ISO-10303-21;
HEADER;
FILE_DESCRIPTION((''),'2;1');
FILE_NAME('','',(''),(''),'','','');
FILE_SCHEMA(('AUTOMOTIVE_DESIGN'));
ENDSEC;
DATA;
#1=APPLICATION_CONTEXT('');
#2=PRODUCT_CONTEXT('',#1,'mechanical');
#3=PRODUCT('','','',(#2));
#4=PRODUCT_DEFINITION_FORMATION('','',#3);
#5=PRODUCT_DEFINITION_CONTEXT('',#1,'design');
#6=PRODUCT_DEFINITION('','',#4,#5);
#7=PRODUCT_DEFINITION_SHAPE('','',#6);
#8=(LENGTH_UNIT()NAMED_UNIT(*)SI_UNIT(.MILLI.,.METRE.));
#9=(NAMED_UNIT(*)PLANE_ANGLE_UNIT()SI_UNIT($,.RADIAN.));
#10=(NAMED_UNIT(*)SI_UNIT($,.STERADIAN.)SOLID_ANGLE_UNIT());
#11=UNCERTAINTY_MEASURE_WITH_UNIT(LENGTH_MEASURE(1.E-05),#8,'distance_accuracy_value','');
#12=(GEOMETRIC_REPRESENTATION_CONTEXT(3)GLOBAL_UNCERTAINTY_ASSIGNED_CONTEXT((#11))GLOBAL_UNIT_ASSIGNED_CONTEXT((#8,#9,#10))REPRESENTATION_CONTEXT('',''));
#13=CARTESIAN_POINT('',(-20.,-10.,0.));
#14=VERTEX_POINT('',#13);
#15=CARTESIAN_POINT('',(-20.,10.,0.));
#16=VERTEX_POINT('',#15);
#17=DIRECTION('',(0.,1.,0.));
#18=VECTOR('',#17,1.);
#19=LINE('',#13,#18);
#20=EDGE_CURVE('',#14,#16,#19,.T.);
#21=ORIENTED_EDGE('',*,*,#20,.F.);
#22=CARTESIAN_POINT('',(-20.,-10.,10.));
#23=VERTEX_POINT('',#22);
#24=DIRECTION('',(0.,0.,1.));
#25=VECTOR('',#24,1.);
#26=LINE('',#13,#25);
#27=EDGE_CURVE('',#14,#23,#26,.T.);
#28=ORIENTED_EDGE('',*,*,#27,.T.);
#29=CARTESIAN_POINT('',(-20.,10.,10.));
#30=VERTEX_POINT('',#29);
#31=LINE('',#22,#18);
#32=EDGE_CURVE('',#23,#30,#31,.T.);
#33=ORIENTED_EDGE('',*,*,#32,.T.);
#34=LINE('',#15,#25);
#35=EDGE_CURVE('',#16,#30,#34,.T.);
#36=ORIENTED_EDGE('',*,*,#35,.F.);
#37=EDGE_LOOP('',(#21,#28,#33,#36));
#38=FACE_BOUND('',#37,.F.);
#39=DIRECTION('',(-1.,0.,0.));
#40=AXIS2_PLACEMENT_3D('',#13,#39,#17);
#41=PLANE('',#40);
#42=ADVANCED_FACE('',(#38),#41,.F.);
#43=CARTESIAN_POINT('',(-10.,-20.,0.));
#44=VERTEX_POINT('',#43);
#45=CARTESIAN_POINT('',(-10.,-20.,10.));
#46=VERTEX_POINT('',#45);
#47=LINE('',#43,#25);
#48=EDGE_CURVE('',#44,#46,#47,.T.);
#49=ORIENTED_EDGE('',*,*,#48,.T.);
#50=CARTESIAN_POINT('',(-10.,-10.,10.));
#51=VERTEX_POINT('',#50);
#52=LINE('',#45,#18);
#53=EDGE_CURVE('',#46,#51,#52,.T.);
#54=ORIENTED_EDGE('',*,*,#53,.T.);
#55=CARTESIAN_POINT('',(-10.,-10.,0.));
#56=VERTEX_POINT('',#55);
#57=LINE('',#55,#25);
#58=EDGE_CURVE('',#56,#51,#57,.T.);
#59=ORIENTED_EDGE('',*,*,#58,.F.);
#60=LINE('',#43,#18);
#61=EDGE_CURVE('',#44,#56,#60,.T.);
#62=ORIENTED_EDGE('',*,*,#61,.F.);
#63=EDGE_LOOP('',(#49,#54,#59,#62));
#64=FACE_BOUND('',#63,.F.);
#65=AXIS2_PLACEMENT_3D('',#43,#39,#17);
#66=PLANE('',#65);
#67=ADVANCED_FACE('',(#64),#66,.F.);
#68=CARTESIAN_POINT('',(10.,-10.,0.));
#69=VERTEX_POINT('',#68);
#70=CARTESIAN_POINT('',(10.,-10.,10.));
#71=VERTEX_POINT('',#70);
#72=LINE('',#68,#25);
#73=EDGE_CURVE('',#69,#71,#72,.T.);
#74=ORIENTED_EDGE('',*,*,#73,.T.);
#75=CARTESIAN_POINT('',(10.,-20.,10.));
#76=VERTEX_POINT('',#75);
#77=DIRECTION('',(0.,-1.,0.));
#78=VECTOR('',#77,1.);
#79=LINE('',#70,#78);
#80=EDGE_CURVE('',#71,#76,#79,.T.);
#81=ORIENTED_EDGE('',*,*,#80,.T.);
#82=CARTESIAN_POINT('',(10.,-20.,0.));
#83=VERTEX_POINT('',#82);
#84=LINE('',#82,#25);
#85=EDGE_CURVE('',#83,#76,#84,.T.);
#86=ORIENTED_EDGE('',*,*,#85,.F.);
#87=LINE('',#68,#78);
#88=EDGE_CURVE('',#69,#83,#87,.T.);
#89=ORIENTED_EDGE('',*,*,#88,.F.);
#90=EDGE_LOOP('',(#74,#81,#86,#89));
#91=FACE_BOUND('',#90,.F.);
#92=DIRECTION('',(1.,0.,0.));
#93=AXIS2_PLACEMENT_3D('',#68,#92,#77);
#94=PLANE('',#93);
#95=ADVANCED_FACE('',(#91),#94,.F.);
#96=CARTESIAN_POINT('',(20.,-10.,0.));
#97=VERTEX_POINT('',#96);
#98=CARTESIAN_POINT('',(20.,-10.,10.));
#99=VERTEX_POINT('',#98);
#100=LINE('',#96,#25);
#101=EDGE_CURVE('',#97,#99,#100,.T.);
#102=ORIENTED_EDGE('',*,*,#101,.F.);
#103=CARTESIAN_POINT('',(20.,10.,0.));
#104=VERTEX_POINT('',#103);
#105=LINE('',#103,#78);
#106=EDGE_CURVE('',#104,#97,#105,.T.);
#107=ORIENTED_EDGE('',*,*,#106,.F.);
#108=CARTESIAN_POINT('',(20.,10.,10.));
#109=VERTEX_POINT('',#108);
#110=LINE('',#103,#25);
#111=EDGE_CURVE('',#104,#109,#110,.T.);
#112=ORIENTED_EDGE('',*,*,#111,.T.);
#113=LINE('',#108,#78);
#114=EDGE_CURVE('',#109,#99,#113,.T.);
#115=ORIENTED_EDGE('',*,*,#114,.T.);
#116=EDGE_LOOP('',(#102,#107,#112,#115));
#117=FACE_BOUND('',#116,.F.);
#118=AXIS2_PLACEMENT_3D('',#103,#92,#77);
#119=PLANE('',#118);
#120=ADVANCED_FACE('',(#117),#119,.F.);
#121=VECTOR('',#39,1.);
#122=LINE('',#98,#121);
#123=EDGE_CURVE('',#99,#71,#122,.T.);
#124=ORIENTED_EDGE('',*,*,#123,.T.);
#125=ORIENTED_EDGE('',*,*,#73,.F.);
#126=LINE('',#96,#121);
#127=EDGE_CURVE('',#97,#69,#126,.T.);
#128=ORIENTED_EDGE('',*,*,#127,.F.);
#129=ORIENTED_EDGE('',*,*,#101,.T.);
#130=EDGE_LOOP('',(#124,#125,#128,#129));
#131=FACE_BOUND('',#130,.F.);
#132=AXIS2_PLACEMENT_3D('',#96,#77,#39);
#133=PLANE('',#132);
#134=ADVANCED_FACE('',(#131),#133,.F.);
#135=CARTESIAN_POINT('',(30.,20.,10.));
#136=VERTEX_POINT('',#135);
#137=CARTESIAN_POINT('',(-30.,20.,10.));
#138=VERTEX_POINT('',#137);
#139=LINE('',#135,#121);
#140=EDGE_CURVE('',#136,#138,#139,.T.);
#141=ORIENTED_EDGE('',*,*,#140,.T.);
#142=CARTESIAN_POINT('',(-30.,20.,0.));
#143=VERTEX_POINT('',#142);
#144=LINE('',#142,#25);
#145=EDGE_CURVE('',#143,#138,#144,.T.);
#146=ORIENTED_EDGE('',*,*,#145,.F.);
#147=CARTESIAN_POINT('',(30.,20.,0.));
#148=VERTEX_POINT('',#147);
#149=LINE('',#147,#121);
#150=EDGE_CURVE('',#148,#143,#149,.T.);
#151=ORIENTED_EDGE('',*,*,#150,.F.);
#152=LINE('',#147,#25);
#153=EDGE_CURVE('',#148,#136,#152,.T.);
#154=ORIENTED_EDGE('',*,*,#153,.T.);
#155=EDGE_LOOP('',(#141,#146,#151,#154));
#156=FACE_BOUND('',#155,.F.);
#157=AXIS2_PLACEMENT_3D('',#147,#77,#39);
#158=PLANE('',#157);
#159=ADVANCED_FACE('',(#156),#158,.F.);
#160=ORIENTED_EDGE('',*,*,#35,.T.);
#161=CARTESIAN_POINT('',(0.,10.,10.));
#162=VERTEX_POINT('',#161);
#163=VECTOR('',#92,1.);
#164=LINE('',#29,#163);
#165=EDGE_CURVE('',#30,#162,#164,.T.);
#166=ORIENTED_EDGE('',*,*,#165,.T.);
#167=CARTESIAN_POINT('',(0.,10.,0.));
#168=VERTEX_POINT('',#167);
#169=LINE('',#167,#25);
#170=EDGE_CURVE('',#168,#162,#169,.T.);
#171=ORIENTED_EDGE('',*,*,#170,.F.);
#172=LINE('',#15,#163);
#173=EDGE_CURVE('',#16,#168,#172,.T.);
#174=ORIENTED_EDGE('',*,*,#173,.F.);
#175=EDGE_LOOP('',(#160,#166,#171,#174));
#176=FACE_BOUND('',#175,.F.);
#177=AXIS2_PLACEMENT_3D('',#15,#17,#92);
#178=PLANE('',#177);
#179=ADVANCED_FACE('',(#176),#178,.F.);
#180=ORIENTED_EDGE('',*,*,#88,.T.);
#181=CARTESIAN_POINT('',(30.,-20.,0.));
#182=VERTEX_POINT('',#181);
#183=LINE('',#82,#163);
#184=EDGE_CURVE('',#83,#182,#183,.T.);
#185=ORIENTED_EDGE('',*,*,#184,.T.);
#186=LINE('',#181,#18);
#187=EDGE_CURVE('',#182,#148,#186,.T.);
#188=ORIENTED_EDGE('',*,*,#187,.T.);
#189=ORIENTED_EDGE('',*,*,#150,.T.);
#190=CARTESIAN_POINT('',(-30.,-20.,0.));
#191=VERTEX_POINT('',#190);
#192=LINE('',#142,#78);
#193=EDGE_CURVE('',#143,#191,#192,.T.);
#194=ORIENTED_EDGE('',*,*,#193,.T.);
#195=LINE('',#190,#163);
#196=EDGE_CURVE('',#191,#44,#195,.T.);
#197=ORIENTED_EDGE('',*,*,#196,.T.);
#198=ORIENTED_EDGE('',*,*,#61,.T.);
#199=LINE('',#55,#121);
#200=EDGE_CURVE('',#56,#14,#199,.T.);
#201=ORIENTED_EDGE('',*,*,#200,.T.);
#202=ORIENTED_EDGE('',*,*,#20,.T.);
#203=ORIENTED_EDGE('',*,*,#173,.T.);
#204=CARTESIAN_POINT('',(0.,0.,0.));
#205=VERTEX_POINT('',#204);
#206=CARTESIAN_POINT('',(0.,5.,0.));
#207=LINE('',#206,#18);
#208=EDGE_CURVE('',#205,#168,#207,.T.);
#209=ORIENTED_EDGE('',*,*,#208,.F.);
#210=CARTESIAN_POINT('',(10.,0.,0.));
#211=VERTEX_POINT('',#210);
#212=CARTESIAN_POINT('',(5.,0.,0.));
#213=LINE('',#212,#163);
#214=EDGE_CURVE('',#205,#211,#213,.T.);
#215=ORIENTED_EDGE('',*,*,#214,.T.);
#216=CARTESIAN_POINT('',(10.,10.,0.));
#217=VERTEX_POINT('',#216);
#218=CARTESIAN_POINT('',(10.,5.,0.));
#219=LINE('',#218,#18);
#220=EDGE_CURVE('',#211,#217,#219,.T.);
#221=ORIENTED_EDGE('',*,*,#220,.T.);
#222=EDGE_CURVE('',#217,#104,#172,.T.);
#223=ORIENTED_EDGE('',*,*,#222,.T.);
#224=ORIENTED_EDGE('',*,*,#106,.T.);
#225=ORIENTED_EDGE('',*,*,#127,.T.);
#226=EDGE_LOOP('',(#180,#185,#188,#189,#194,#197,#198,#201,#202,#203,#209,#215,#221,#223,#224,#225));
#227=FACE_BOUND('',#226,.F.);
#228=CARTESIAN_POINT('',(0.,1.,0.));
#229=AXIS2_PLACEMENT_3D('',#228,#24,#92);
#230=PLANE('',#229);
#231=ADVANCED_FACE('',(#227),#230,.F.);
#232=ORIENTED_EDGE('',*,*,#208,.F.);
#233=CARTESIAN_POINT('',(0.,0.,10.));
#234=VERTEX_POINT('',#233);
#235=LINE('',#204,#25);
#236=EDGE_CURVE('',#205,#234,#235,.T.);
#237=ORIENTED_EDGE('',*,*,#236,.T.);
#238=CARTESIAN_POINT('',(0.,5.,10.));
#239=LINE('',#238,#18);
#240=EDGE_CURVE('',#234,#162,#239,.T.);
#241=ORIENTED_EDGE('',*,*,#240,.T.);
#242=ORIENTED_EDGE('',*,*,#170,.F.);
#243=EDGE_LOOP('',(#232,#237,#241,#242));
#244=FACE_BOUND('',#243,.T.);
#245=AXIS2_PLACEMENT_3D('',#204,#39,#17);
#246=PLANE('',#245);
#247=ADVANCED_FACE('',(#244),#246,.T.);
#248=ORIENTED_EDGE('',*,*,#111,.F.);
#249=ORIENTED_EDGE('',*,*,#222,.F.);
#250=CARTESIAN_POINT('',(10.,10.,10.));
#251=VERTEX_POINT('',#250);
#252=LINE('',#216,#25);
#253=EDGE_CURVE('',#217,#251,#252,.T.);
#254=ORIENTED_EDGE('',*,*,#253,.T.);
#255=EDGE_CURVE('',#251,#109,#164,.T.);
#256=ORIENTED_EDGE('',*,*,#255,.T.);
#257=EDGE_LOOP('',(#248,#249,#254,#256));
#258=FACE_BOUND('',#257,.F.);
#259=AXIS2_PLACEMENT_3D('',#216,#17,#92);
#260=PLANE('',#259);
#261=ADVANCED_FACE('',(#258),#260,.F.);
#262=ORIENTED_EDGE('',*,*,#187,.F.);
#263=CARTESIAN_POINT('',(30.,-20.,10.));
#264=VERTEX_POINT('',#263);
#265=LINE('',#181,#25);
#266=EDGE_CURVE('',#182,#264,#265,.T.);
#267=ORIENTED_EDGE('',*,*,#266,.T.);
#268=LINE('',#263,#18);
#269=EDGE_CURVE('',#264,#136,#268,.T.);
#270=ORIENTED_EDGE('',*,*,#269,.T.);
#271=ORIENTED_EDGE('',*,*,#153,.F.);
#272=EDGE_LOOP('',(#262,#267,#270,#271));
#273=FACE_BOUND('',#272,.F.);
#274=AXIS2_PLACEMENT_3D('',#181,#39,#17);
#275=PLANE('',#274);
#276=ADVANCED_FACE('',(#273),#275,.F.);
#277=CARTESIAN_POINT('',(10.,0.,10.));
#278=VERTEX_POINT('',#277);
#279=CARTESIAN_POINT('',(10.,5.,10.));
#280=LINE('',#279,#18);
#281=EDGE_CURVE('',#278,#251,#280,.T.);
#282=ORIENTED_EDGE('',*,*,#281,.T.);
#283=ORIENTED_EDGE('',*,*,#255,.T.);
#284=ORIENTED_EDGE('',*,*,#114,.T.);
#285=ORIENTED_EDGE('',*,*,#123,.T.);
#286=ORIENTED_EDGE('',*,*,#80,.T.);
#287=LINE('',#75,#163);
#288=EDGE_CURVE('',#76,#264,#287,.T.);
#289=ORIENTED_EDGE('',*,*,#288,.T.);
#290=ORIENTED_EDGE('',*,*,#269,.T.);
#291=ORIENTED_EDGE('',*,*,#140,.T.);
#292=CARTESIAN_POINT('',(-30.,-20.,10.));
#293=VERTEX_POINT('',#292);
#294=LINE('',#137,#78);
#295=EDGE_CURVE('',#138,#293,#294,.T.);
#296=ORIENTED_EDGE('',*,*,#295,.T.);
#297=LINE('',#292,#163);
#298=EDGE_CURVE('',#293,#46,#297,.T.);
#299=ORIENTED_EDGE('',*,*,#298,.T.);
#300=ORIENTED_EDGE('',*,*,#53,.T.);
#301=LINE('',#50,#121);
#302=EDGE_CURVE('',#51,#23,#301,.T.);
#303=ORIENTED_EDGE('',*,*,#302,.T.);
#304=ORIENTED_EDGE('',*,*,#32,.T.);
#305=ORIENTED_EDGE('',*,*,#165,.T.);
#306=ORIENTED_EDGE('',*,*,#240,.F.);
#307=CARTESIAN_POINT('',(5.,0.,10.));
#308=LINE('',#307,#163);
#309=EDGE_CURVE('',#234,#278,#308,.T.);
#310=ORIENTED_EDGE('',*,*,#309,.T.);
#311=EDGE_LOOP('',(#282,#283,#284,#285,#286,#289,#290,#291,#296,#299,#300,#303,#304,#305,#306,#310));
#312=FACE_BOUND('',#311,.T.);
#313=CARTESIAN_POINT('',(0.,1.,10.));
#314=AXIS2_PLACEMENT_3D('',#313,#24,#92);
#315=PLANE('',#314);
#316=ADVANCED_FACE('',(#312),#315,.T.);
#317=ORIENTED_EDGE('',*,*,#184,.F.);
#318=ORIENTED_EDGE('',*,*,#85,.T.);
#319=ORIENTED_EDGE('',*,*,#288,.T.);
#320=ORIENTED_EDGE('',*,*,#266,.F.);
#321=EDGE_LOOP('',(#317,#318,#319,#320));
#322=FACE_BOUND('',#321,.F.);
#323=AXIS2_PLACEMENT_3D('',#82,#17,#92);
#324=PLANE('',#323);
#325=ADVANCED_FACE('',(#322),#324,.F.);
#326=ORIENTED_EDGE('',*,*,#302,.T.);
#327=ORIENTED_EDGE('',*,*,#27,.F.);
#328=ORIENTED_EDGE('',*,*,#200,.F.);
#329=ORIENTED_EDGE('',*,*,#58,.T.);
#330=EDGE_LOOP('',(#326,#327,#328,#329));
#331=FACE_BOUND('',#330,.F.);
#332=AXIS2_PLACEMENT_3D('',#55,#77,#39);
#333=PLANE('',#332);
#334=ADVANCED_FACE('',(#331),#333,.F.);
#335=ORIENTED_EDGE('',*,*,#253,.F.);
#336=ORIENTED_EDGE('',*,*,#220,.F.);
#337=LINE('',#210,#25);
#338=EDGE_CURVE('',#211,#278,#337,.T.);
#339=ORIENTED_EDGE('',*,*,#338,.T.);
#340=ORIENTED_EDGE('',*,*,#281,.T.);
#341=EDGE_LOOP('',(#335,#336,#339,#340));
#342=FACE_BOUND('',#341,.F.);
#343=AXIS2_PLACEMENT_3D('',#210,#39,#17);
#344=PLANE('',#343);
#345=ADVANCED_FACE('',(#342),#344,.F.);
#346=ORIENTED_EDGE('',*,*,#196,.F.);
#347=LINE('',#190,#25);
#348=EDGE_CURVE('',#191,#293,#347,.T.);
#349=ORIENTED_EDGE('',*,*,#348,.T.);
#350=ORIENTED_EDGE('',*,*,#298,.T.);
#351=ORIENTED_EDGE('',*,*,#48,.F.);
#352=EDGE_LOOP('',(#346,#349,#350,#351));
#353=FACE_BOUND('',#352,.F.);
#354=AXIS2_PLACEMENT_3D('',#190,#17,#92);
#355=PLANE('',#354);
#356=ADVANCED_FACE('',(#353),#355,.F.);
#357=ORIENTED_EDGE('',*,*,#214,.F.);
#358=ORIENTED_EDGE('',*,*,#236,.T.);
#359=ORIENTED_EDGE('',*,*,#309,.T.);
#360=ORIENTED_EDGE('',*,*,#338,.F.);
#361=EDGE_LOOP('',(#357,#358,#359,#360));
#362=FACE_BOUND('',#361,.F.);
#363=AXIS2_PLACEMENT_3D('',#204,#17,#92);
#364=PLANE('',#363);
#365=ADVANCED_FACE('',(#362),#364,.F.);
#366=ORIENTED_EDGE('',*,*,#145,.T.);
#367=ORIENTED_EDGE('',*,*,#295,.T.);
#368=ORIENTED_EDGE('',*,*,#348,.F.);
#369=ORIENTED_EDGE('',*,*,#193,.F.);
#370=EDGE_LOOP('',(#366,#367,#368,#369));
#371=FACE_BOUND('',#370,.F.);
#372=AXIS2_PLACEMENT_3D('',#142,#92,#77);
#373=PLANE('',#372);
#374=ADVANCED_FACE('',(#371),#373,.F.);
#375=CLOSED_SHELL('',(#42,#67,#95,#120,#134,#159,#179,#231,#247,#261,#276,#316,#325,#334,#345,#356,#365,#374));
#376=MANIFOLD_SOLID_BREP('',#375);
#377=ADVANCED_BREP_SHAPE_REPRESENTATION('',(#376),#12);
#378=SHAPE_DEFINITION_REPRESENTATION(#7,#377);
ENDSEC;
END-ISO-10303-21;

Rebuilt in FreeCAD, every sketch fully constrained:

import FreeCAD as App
import Part
import Sketcher
Q = App.Units.Quantity


def add_polygon(sketch, points):
    """Adds a closed chain of lines whose ends are joined by coincident constraints."""
    first, n = sketch.GeometryCount, len(points)
    for a, b in zip(points, points[1:] + points[:1]):
        sketch.addGeometry(Part.LineSegment(App.Vector(*a, 0), App.Vector(*b, 0)), False)
    for i in range(n):
        sketch.addConstraint(Sketcher.Constraint("Coincident", first + i, 2, first + (i + 1) % n, 1))

doc = App.newDocument("Part")
body = doc.addObject("PartDesign::Body", "Body")

# Sketch on XY plane
sketch1 = doc.addObject("Sketcher::SketchObject", "Sketch")
body.addObject(sketch1)
sketch1.AttachmentSupport = (doc.XY_Plane, [""])
sketch1.MapMode = "FlatFace"
add_polygon(sketch1, [(30, 20), (-30, 20), (-30, -20), (-10, -20), (-10, -10), (-20, -10), (-20, 10), (0, 10), (0, 0), (10, 0), (10, 10), (20, 10), (20, -10), (10, -10), (10, -20), (30, -20)])  # lines 0-15
sketch1.addConstraint([
    Sketcher.Constraint("Horizontal", 0),
    Sketcher.Constraint("Vertical", 1),
    Sketcher.Constraint("Horizontal", 2),
    Sketcher.Constraint("Vertical", 3),
    Sketcher.Constraint("Horizontal", 4),
    Sketcher.Constraint("Vertical", 5),
    Sketcher.Constraint("Horizontal", 6),
    Sketcher.Constraint("Vertical", 7),
    Sketcher.Constraint("Horizontal", 8),
    Sketcher.Constraint("Vertical", 9),
    Sketcher.Constraint("Horizontal", 10),
    Sketcher.Constraint("Vertical", 11),
    Sketcher.Constraint("Horizontal", 12),
    Sketcher.Constraint("Vertical", 13),
    Sketcher.Constraint("Horizontal", 14),
    Sketcher.Constraint("Vertical", 15),
    Sketcher.Constraint("Coincident", 7, 2, -1, 1),
    Sketcher.Constraint("Symmetric", 3, 2, 9, 2, -1, 1),
    Sketcher.Constraint("Symmetric", 5, 2, 11, 2, -1, 1),
    Sketcher.Constraint("Symmetric", 0, 2, 14, 2, -1, 1),
    Sketcher.Constraint("Symmetric", 3, 2, 12, 2, -2),
    Sketcher.Constraint("Horizontal", 2, 2, 13, 2),
    Sketcher.Constraint("Equal", 2, 6),
    Sketcher.Constraint("Equal", 4, 8),
    Sketcher.Constraint("Equal", 12, 3),
    Sketcher.Constraint("Equal", 14, 5),
    Sketcher.Constraint("DistanceX", 0, 2, 0, 1, Q("60 mm")),
])
pad1 = doc.addObject("PartDesign::Pad", "Pad")
body.addObject(pad1)
pad1.Profile = sketch1
pad1.Length = 10

doc.recompute()
